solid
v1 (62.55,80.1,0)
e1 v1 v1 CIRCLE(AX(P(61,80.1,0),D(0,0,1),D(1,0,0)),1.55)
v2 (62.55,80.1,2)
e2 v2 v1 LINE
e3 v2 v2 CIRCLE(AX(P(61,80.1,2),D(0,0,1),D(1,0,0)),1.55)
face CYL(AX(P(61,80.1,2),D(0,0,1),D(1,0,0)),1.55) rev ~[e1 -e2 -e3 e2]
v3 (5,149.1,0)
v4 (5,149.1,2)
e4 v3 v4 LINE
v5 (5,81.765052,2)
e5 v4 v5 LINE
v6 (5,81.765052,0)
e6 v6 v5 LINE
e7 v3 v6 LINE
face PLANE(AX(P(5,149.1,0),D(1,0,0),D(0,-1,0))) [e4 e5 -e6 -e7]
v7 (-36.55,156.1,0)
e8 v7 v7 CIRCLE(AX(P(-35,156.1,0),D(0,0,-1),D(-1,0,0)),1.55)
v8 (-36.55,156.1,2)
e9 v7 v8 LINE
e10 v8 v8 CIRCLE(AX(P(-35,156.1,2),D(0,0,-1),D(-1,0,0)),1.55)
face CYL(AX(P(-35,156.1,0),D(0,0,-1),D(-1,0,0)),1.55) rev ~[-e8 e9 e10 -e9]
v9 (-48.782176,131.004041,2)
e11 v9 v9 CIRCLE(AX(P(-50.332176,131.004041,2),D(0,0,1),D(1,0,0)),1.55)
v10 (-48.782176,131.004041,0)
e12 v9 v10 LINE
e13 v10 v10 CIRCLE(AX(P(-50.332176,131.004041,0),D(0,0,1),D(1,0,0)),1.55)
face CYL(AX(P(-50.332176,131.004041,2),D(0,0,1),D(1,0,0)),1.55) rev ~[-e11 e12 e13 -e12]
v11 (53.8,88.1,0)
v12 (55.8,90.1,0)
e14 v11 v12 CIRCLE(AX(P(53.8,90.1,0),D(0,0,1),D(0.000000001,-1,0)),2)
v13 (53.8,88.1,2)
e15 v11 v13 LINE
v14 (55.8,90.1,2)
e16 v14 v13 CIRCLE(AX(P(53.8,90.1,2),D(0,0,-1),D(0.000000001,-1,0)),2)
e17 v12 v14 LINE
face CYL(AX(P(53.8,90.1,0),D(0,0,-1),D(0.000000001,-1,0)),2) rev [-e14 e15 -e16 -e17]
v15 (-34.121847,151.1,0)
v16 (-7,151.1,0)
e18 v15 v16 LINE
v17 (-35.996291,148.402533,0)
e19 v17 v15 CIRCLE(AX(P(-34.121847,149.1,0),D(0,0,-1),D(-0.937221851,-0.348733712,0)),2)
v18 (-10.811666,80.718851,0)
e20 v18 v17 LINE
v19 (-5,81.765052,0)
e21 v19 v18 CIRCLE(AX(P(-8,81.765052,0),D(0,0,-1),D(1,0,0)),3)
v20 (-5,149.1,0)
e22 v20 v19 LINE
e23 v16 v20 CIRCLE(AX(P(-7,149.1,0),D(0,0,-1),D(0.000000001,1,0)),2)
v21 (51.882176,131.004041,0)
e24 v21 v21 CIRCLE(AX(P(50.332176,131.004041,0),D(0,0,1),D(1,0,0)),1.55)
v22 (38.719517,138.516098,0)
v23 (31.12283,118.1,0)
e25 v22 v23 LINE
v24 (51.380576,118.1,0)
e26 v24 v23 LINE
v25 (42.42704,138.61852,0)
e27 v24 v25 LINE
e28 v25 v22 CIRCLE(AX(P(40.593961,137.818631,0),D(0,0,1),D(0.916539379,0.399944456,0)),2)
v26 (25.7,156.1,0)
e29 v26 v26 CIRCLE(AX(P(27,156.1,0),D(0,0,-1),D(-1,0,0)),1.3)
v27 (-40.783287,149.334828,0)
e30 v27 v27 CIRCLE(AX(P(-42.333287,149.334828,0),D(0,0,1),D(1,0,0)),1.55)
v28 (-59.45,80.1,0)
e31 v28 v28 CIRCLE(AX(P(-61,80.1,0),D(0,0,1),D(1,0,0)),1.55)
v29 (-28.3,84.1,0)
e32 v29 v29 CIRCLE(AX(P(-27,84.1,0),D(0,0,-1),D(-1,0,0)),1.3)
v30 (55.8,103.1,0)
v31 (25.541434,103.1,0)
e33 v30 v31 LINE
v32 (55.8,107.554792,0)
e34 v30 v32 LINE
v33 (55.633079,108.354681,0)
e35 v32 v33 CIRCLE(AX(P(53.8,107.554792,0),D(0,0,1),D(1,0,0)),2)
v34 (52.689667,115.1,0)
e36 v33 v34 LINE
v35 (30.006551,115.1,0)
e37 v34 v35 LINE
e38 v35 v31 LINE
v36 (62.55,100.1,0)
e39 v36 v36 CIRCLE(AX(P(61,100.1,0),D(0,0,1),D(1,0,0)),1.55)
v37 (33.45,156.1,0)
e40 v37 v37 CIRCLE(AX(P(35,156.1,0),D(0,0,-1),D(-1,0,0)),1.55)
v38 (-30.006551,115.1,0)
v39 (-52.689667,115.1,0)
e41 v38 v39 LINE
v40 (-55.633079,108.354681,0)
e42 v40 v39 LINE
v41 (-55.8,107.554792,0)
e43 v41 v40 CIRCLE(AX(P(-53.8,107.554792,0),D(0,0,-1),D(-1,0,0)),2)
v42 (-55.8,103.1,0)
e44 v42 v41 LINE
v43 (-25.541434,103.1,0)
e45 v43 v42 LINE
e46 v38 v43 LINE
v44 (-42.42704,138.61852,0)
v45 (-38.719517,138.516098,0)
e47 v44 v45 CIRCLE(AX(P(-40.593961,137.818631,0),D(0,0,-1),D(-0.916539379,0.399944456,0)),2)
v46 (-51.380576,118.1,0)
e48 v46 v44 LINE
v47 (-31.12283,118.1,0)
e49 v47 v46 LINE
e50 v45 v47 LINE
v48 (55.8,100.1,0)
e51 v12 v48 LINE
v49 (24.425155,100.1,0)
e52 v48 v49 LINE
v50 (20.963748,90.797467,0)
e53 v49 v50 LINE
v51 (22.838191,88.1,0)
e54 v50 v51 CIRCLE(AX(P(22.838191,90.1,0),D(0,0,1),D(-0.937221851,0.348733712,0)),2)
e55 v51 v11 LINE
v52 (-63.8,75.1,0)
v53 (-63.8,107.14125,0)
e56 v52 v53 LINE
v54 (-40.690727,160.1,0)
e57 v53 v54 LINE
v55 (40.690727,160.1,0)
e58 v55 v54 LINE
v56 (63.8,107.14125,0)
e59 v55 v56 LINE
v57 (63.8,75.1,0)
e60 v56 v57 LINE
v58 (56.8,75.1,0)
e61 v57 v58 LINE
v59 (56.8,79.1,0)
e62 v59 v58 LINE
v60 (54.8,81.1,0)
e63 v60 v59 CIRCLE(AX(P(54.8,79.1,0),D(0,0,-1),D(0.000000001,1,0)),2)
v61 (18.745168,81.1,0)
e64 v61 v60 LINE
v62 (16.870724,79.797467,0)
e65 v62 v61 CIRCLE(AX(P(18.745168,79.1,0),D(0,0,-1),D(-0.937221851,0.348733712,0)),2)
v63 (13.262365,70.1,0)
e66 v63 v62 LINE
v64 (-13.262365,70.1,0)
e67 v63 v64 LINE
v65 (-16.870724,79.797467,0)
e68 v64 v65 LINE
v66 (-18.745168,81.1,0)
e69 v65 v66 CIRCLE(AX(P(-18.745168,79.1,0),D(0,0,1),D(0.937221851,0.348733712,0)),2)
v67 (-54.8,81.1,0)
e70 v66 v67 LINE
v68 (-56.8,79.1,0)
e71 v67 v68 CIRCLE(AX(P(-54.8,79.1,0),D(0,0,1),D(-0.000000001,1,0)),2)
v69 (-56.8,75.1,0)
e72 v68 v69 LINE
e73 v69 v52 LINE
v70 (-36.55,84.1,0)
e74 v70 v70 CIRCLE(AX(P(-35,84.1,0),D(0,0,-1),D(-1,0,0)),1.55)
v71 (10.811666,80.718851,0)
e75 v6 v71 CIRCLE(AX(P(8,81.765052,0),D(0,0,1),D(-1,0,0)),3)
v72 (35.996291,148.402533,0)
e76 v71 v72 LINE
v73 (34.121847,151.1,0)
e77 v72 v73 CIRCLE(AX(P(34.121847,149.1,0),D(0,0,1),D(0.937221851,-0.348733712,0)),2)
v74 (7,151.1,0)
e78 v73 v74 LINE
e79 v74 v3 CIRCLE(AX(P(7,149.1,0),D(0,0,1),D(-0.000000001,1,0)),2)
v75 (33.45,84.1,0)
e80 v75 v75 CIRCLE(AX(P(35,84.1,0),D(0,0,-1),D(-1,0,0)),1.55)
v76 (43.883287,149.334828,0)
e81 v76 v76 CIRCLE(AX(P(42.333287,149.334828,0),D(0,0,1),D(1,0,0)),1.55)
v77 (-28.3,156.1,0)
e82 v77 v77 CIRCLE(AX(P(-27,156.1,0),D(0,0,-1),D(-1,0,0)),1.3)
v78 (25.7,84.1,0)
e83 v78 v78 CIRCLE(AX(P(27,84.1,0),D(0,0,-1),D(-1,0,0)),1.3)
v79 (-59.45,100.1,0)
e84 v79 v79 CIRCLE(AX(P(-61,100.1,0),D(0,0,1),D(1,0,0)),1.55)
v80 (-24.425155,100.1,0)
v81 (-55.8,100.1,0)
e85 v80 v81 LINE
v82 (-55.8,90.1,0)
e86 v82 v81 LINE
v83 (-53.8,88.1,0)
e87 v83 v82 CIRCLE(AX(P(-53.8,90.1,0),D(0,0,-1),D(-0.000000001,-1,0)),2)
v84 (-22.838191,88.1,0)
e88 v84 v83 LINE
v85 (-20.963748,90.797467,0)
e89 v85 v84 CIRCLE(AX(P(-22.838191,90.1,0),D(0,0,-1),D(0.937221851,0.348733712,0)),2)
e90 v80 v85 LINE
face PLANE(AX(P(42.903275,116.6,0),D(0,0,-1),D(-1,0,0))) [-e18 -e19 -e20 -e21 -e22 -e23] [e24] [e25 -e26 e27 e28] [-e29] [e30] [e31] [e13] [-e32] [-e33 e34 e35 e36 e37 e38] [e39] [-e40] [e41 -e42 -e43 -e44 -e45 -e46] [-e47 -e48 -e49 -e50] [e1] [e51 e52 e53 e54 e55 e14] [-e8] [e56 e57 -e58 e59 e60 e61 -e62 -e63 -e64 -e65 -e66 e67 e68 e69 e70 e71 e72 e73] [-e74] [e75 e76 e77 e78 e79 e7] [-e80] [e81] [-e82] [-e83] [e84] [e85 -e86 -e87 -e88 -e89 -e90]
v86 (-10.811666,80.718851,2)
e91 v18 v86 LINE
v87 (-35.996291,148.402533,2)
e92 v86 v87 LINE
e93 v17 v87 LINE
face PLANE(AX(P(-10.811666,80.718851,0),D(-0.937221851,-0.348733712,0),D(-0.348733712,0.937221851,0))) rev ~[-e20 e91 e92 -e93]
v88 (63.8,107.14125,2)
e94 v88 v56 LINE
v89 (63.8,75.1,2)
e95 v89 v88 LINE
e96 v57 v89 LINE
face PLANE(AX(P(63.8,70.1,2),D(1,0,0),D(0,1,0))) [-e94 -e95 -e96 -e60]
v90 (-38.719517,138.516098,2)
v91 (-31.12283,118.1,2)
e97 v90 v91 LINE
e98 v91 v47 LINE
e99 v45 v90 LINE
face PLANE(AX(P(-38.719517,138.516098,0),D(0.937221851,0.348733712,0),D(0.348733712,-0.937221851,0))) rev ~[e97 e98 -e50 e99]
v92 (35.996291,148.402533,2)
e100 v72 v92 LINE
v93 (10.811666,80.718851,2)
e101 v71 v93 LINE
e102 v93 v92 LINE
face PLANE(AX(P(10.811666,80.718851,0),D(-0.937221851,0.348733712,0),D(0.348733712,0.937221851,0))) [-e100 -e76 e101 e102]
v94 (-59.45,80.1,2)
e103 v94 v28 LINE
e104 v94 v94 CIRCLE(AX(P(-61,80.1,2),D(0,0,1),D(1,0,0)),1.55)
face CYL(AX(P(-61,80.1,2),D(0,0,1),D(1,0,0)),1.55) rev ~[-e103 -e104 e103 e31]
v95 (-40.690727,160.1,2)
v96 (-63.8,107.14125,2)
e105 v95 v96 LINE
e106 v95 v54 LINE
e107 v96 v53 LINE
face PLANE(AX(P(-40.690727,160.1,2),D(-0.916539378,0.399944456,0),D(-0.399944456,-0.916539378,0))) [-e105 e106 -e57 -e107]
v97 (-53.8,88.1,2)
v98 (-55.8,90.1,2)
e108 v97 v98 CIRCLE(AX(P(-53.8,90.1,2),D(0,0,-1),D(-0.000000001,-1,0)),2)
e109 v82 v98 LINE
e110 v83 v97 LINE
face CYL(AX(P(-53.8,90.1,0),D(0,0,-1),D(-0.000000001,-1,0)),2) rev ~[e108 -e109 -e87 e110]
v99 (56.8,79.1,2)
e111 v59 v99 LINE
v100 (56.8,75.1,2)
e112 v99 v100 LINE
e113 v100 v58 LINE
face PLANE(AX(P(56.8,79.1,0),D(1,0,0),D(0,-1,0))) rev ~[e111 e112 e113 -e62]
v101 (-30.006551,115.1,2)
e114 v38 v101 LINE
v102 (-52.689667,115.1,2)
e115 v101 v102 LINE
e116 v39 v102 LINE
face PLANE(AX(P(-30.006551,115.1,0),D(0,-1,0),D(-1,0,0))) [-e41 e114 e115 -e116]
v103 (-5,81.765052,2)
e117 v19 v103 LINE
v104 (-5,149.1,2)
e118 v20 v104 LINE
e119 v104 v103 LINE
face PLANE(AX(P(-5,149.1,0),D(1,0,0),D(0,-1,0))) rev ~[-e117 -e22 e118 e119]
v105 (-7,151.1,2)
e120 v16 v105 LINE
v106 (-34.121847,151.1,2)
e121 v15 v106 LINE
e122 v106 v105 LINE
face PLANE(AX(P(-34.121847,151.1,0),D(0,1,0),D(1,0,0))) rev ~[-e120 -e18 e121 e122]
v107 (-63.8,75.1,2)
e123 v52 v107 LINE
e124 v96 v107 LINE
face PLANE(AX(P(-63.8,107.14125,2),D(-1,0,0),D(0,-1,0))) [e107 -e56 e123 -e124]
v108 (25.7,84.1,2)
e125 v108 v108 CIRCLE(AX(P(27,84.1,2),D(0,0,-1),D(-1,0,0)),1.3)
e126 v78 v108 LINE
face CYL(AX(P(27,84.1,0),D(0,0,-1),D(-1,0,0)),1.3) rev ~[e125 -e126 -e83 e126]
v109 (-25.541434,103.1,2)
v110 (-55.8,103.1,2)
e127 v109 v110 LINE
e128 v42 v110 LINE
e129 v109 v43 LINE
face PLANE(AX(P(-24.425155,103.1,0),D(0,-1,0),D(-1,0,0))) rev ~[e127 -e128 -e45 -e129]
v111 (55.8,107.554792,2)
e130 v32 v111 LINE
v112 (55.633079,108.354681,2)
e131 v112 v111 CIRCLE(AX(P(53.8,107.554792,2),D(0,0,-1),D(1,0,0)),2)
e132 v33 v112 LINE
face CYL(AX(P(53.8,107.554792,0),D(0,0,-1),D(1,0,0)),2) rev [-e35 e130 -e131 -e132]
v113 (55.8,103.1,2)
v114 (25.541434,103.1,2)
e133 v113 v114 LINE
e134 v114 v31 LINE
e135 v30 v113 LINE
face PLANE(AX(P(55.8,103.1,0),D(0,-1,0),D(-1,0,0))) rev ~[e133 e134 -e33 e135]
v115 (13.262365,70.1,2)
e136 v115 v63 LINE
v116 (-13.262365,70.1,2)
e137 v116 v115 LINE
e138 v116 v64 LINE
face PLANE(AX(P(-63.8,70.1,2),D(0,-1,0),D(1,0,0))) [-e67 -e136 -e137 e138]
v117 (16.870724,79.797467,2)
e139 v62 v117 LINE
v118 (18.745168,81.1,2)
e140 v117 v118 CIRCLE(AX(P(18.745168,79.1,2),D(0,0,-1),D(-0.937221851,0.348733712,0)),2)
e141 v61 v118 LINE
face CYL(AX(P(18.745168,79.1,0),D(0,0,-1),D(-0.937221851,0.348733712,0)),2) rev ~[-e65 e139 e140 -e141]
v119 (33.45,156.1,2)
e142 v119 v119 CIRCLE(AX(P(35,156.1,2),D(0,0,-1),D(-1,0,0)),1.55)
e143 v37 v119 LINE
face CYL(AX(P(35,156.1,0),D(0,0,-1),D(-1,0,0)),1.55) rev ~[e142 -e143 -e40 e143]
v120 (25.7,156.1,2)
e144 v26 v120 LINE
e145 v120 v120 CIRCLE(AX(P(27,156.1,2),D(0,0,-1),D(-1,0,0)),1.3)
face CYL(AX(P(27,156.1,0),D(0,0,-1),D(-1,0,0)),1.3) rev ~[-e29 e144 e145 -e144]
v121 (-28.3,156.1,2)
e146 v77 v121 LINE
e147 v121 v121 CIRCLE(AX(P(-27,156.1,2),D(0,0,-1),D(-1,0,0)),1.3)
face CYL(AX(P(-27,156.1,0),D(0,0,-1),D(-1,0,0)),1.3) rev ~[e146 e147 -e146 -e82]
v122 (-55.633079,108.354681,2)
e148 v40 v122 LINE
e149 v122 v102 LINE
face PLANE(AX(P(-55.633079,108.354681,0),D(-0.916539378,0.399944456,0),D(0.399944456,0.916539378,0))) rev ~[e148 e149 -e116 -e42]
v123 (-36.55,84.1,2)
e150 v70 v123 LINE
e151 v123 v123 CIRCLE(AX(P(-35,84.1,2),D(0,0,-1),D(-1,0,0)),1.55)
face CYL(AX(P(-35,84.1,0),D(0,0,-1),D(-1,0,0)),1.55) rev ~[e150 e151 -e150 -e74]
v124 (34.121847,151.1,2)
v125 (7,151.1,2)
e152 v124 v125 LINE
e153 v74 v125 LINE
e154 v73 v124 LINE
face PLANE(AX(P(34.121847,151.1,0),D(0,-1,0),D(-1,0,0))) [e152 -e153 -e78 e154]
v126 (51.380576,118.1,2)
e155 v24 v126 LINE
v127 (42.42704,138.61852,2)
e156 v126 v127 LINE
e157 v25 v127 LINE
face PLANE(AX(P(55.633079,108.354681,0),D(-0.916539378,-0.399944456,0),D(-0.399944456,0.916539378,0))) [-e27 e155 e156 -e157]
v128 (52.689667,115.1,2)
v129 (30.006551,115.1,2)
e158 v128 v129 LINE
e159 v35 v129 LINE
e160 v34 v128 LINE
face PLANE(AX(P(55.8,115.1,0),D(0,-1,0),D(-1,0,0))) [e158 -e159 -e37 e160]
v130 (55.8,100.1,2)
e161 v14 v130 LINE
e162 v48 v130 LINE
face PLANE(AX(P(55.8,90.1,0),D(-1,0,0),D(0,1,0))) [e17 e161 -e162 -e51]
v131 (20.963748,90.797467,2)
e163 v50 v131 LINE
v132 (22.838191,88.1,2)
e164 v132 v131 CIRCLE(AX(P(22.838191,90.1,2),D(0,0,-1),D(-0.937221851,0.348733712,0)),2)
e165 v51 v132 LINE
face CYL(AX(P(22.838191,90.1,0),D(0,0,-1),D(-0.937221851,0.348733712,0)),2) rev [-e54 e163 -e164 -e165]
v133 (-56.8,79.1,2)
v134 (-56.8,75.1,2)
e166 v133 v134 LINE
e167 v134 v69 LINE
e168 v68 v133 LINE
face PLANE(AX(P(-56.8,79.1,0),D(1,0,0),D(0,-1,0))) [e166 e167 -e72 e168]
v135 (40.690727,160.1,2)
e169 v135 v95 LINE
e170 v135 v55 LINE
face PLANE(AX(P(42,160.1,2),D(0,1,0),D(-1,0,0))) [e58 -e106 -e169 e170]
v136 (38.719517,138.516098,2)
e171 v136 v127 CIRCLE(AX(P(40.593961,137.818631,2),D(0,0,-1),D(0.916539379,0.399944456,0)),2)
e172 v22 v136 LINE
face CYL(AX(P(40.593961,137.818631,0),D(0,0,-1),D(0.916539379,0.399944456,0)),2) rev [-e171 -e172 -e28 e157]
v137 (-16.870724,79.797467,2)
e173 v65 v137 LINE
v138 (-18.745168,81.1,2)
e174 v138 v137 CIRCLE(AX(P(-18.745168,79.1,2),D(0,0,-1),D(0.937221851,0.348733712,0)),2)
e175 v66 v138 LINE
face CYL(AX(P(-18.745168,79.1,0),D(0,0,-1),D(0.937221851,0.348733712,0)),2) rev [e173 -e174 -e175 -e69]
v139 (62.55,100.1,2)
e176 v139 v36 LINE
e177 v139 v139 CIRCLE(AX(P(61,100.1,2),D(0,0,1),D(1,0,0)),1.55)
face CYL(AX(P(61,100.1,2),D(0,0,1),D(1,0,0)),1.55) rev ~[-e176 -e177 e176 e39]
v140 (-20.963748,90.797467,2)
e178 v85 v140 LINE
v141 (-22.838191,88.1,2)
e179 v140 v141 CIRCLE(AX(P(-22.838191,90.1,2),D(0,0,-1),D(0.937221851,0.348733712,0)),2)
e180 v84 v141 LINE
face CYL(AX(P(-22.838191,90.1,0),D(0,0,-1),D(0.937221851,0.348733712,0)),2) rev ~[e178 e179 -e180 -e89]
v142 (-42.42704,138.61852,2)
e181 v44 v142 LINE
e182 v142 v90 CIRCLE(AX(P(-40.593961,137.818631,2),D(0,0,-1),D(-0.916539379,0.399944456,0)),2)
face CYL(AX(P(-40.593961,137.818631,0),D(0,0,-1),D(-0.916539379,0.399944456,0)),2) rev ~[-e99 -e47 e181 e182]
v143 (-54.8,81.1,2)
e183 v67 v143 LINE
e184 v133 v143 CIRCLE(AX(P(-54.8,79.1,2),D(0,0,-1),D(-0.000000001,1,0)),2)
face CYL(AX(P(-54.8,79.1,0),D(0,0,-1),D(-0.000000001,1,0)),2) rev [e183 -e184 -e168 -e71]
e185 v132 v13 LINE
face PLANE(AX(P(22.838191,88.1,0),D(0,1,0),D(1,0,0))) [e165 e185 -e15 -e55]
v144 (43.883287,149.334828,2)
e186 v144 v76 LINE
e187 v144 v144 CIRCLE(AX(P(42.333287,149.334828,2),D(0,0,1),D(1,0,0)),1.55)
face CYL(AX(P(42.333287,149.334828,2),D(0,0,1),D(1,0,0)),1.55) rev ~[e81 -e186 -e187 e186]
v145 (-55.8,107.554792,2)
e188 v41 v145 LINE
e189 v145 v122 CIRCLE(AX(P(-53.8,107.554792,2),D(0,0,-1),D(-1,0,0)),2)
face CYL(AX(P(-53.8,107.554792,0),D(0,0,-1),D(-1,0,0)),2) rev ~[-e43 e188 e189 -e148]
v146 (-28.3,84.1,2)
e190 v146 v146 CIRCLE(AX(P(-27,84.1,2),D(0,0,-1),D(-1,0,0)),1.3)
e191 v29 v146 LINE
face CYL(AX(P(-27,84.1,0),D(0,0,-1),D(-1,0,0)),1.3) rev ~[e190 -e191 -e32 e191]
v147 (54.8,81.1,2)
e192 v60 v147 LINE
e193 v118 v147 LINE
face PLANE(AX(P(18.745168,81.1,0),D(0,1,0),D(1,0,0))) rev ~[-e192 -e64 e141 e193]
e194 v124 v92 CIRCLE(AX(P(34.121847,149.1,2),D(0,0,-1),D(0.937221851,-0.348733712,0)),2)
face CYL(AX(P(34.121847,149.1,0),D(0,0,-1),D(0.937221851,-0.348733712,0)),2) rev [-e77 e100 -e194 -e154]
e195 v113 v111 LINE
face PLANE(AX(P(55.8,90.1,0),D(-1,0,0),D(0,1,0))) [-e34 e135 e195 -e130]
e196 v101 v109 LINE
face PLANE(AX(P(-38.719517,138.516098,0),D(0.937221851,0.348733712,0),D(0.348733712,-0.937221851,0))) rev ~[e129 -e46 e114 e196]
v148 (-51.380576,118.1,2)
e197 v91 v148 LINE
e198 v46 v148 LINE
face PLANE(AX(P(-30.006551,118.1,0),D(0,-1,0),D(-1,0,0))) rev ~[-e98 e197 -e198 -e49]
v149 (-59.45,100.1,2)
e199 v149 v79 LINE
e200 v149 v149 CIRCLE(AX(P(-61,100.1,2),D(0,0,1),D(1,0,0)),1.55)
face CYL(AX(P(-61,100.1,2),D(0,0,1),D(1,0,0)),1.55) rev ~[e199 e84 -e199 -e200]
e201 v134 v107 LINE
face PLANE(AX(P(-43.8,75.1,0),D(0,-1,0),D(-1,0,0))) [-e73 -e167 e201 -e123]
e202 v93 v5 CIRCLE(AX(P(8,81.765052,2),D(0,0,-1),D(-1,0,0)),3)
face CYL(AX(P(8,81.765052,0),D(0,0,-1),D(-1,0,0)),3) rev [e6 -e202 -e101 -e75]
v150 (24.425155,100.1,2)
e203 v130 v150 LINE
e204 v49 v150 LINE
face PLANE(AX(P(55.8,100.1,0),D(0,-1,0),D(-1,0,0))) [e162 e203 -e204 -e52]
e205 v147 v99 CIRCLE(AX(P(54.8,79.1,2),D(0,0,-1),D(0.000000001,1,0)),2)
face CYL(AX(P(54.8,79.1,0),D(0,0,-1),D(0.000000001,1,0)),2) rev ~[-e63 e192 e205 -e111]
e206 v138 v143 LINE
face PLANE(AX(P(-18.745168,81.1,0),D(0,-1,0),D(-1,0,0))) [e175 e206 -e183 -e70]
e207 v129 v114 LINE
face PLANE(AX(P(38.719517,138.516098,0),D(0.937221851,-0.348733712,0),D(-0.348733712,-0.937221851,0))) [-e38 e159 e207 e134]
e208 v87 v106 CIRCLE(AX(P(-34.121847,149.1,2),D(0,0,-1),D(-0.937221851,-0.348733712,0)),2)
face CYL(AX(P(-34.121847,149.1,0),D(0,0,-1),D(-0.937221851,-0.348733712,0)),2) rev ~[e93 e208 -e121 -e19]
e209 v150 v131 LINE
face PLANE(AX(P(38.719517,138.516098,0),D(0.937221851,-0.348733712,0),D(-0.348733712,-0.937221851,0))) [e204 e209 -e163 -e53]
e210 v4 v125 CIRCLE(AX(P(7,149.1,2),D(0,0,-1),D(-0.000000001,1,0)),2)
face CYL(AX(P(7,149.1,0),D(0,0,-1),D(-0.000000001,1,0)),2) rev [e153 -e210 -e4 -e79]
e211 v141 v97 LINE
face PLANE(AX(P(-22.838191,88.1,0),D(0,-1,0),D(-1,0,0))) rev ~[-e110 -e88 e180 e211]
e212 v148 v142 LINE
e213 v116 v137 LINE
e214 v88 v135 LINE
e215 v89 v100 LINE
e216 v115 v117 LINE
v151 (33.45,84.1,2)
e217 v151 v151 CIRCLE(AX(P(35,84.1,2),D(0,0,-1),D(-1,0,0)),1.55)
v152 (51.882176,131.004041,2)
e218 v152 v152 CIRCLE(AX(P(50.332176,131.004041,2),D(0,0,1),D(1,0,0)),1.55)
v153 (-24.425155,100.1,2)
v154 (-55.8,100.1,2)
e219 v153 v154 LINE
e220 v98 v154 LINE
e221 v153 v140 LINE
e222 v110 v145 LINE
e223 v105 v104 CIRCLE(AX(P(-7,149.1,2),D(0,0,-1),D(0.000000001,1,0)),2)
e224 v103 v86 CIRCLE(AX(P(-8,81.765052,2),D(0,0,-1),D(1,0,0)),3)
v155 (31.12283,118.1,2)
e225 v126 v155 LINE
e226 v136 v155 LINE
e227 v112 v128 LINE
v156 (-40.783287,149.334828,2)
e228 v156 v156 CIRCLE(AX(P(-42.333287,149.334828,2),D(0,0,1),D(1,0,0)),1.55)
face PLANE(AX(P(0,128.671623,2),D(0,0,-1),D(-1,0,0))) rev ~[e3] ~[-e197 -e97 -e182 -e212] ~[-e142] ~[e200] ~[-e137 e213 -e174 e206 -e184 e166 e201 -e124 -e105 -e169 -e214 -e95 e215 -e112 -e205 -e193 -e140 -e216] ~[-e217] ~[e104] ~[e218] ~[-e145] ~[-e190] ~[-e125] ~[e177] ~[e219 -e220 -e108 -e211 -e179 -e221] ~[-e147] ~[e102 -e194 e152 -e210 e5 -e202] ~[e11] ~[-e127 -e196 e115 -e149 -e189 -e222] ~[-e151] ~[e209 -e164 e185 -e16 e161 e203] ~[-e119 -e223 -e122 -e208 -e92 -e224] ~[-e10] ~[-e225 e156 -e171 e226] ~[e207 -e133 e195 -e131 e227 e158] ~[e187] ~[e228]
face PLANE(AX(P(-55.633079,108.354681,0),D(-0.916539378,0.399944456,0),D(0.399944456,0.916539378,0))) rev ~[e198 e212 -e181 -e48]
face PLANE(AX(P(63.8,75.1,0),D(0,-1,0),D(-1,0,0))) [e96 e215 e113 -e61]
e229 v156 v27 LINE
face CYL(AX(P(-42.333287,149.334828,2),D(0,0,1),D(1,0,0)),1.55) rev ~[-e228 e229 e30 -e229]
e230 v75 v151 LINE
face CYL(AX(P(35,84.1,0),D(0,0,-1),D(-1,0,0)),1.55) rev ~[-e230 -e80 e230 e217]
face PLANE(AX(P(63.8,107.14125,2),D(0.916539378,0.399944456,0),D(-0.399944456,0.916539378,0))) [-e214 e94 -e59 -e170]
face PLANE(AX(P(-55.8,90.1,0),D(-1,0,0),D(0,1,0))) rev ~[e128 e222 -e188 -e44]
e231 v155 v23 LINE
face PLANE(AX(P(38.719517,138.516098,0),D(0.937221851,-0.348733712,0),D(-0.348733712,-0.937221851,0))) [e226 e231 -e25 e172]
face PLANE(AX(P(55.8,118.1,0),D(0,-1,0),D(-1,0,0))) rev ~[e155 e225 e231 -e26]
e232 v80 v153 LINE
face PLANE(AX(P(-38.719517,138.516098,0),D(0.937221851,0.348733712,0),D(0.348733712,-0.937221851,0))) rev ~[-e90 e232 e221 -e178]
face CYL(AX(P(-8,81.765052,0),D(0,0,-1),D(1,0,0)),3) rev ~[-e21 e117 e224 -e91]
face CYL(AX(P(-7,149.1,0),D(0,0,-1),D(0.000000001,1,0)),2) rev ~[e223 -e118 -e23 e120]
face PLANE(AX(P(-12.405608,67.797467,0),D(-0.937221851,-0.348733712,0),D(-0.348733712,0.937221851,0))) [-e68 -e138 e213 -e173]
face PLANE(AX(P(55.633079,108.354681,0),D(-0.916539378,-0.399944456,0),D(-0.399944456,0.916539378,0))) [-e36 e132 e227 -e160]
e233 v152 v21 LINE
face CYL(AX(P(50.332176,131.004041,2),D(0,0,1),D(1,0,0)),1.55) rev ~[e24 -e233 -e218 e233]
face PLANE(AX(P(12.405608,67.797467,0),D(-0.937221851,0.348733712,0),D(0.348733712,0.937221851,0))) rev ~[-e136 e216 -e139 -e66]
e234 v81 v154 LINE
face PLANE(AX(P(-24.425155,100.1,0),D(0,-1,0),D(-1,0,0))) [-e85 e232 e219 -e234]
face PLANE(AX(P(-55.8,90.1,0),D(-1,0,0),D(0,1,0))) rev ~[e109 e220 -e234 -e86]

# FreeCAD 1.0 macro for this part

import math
import FreeCAD as App
import Part
import Sketcher
from FreeCAD import Vector
Q = App.Units.Quantity


def add_polygon(sketch, points):
    """Adds a closed chain of lines whose ends are joined by coincident constraints."""
    first, n = sketch.GeometryCount, len(points)
    for a, b in zip(points, points[1:] + points[:1]):
        sketch.addGeometry(Part.LineSegment(App.Vector(*a, 0), App.Vector(*b, 0)), False)
    for i in range(n):
        sketch.addConstraint(Sketcher.Constraint("Coincident", first + i, 2, first + (i + 1) % n, 1))

doc = App.newDocument("Part")
body = doc.addObject("PartDesign::Body", "Body")

# Sketch on XY plane
sketch1 = body.newObject("Sketcher::SketchObject", "Sketch")
sketch1.AttachmentSupport = (doc.getObject("XY_Plane"), [""])
sketch1.MapMode = "FlatFace"
sketch1.addGeometry(Part.LineSegment(Vector(66, 52.6, 0), Vector(66, 105.1, 0)), False)
sketch1.addGeometry(Part.LineSegment(Vector(66, 105.1, 0), Vector(-66, 105.1, 0)), False)
sketch1.addGeometry(Part.LineSegment(Vector(-66, 105.1, 0), Vector(-66, 52.6, 0)), False)
sketch1.addGeometry(Part.LineSegment(Vector(-66, 52.6, 0), Vector(-45.955328, -13.860297, 0)), False)
sketch1.addGeometry(Part.ArcOfCircle(Part.Circle(Vector(0, 0, 0), Vector(0, 0, 1), 48), math.radians(-163.216494), math.radians(-16.783506)), False)
sketch1.addGeometry(Part.LineSegment(Vector(45.955328, -13.860297, 0), Vector(66, 52.6, 0)), False)
sketch1.addGeometry(Part.Circle(Vector(31.749094, -31.749094, 0), Vector(0, 0, 1), 1.525), False)
sketch1.addGeometry(Part.Circle(Vector(-31.749094, -31.749094, 0), Vector(0, 0, 1), 1.525), False)
sketch1.addGeometry(Part.Circle(Vector(0, 0, 0), Vector(0, 0, 1), 40.9), False)
sketch1.addGeometry(Part.Circle(Vector(31.749094, 31.749094, 0), Vector(0, 0, 1), 1.525), False)
sketch1.addGeometry(Part.Circle(Vector(12.835118, 41.981779, 0), Vector(0, 0, 1), 1.525), False)
sketch1.addGeometry(Part.Circle(Vector(9.5, 52.6, 0), Vector(0, 0, 1), 1.525), False)
sketch1.addGeometry(Part.Circle(Vector(-17.153097, 40.410163, 0), Vector(0, 0, 1), 1.525), False)
sketch1.addGeometry(Part.Circle(Vector(-9.5, 52.6, 0), Vector(0, 0, 1), 1.525), False)
sketch1.addGeometry(Part.Circle(Vector(-31.749094, 31.749094, 0), Vector(0, 0, 1), 1.525), False)
sketch1.addConstraint(Sketcher.Constraint("Coincident", 0, 2, 1, 1))
sketch1.addConstraint(Sketcher.Constraint("Coincident", 1, 2, 2, 1))
sketch1.addConstraint(Sketcher.Constraint("Coincident", 2, 2, 3, 1))
sketch1.addConstraint(Sketcher.Constraint("Tangent", 3, 2, 4, 1))
sketch1.addConstraint(Sketcher.Constraint("Tangent", 4, 2, 5, 1))
sketch1.addConstraint(Sketcher.Constraint("Coincident", 5, 2, 0, 1))
sketch1.addConstraint(Sketcher.Constraint("Vertical", 0))
sketch1.addConstraint(Sketcher.Constraint("Horizontal", 1))
sketch1.addConstraint(Sketcher.Constraint("Vertical", 2))
sketch1.addConstraint(Sketcher.Constraint("Coincident", 4, 3, -1, 1))
sketch1.addConstraint(Sketcher.Constraint("Coincident", 8, 3, -1, 1))
sketch1.addConstraint(Sketcher.Constraint("Equal", 6, 7))
sketch1.addConstraint(Sketcher.Constraint("Equal", 7, 9))
sketch1.addConstraint(Sketcher.Constraint("Equal", 9, 10))
sketch1.addConstraint(Sketcher.Constraint("Equal", 10, 11))
sketch1.addConstraint(Sketcher.Constraint("Equal", 11, 12))
sketch1.addConstraint(Sketcher.Constraint("Equal", 12, 13))
sketch1.addConstraint(Sketcher.Constraint("Equal", 13, 14))
sketch1.addConstraint(Sketcher.Constraint("Symmetric", 7, 3, 9, 3, -1, 1))
sketch1.addConstraint(Sketcher.Constraint("Symmetric", 6, 3, 14, 3, -1, 1))
sketch1.addConstraint(Sketcher.Constraint("Symmetric", 6, 3, 7, 3, -2))
sketch1.addConstraint(Sketcher.Constraint("Symmetric", 11, 3, 13, 3, -2))
sketch1.addConstraint(Sketcher.Constraint("Symmetric", 2, 2, 5, 2, -2))
sketch1.addConstraint(Sketcher.Constraint("Horizontal", 13, 3, 2, 2))
sketch1.addConstraint(Sketcher.Constraint("Radius", 4, Q("48 mm")))
sketch1.addConstraint(Sketcher.Constraint("Diameter", 8, Q("81.8 mm")))
sketch1.addConstraint(Sketcher.Constraint("Diameter", 6, Q("3.05 mm")))
sketch1.addConstraint(Sketcher.Constraint("DistanceX", 1, 2, 1, 1, Q("132 mm")))
sketch1.addConstraint(Sketcher.Constraint("DistanceY", 0, 1, 0, 2, Q("52.5 mm")))
sketch1.addConstraint(Sketcher.Constraint("DistanceX", 13, 3, 11, 3, Q("19 mm")))
sketch1.addConstraint(Sketcher.Constraint("DistanceY", -1, 1, 11, 3, Q("52.6 mm")))
sketch1.addConstraint(Sketcher.Constraint("DistanceY", -1, 1, 10, 3, Q("41.981779 mm")))
sketch1.addConstraint(Sketcher.Constraint("DistanceX", 7, 3, 6, 3, Q("63.498189 mm")))
sketch1.addConstraint(Sketcher.Constraint("DistanceY", 6, 3, 9, 3, Q("63.498189 mm")))
sketch1.addConstraint(Sketcher.Constraint("DistanceX", 12, 3, 9, 3, Q("48.902191 mm")))
sketch1.addConstraint(Sketcher.Constraint("DistanceY", 9, 3, 12, 3, Q("8.661069 mm")))
sketch1.addConstraint(Sketcher.Constraint("DistanceX", 10, 3, 4, 2, Q("33.12021 mm")))
pad1 = body.newObject("PartDesign::Pad", "Pad")
pad1.Profile = sketch1
pad1.Length = 2

# Sketch on XY plane
sketch2 = body.newObject("Sketcher::SketchObject", "Sketch001")
sketch2.AttachmentSupport = (doc.getObject("XY_Plane"), [""])
sketch2.MapMode = "FlatFace"
sketch2.AttachmentOffset = App.Placement(Vector(0, 0, 2), App.Rotation())
add_polygon(sketch2, [(-42, 160.1), (-66, 105.1), (66, 105.1), (42, 160.1)])  # lines 0-3
sketch2.addConstraint(Sketcher.Constraint("Horizontal", 1))
sketch2.addConstraint(Sketcher.Constraint("Horizontal", 3))
sketch2.addConstraint(Sketcher.Constraint("Equal", 0, 2))
sketch2.addConstraint(Sketcher.Constraint("DistanceX", 1, 1, 1, 2, Q("132 mm")))
sketch2.addConstraint(Sketcher.Constraint("DistanceX", 3, 2, 3, 1, Q("84 mm")))
sketch2.addConstraint(Sketcher.Constraint("DistanceX", 0, 2, -1, 1, Q("66 mm")))
sketch2.addConstraint(Sketcher.Constraint("DistanceY", 1, 2, 2, 2, Q("55 mm")))
sketch2.addConstraint(Sketcher.Constraint("DistanceY", -1, 1, 0, 2, Q("105.1 mm")))
pad2 = body.newObject("PartDesign::Pad", "Pad001")
pad2.Profile = sketch2
pad2.Length = 2
pad2.Reversed = True

# Sketch on XY plane
sketch3 = body.newObject("Sketcher::SketchObject", "Sketch002")
sketch3.AttachmentSupport = (doc.getObject("XY_Plane"), [""])
sketch3.MapMode = "FlatFace"
sketch3.AttachmentOffset = App.Placement(Vector(0, 0, 2), App.Rotation())
sketch3.addGeometry(Part.Circle(Vector(-61, 100.1, 0), Vector(0, 0, 1), 1.55), False)
sketch3.addGeometry(Part.Circle(Vector(-61, 80.1, 0), Vector(0, 0, 1), 1.55), False)
sketch3.addGeometry(Part.Circle(Vector(-42.333287, 149.334828, 0), Vector(0, 0, 1), 1.55), False)
sketch3.addGeometry(Part.Circle(Vector(-50.332176, 131.004041, 0), Vector(0, 0, 1), 1.55), False)
sketch3.addGeometry(Part.Circle(Vector(61, 80.1, 0), Vector(0, 0, 1), 1.55), False)
sketch3.addGeometry(Part.Circle(Vector(61, 100.1, 0), Vector(0, 0, 1), 1.55), False)
sketch3.addGeometry(Part.Circle(Vector(50.332176, 131.004041, 0), Vector(0, 0, 1), 1.55), False)
sketch3.addGeometry(Part.Circle(Vector(42.333287, 149.334828, 0), Vector(0, 0, 1), 1.55), False)
sketch3.addConstraint(Sketcher.Constraint("Equal", 0, 1))
sketch3.addConstraint(Sketcher.Constraint("Equal", 1, 2))
sketch3.addConstraint(Sketcher.Constraint("Equal", 2, 3))
sketch3.addConstraint(Sketcher.Constraint("Equal", 3, 4))
sketch3.addConstraint(Sketcher.Constraint("Equal", 4, 5))
sketch3.addConstraint(Sketcher.Constraint("Equal", 5, 6))
sketch3.addConstraint(Sketcher.Constraint("Equal", 6, 7))
sketch3.addConstraint(Sketcher.Constraint("Symmetric", 1, 3, 4, 3, -2))
sketch3.addConstraint(Sketcher.Constraint("Symmetric", 0, 3, 5, 3, -2))
sketch3.addConstraint(Sketcher.Constraint("Symmetric", 3, 3, 6, 3, -2))
sketch3.addConstraint(Sketcher.Constraint("Symmetric", 2, 3, 7, 3, -2))
sketch3.addConstraint(Sketcher.Constraint("Vertical", 0, 3, 1, 3))
sketch3.addConstraint(Sketcher.Constraint("Diameter", 0, Q("3.1 mm")))
sketch3.addConstraint(Sketcher.Constraint("DistanceX", 0, 3, -1, 1, Q("61 mm")))
sketch3.addConstraint(Sketcher.Constraint("DistanceY", 1, 3, 0, 3, Q("20 mm")))
sketch3.addConstraint(Sketcher.Constraint("DistanceY", -1, 1, 0, 3, Q("100.1 mm")))
sketch3.addConstraint(Sketcher.Constraint("DistanceY", -1, 1, 2, 3, Q("149.334828 mm")))
sketch3.addConstraint(Sketcher.Constraint("DistanceY", -1, 1, 3, 3, Q("131.004041 mm")))
sketch3.addConstraint(Sketcher.Constraint("DistanceX", 3, 3, 2, 3, Q("7.998889 mm")))
sketch3.addConstraint(Sketcher.Constraint("DistanceX", 2, 3, -1, 1, Q("42.333287 mm")))
pocket1 = body.newObject("PartDesign::Pocket", "Pocket")
pocket1.Profile = sketch3
pocket1.Length = 10

# Sketch on XY plane
sketch4 = body.newObject("Sketcher::SketchObject", "Sketch003")
sketch4.AttachmentSupport = (doc.getObject("XY_Plane"), [""])
sketch4.MapMode = "FlatFace"
sketch4.AttachmentOffset = App.Placement(Vector(0, 0, 2), App.Rotation())
add_polygon(sketch4, [(-91.644, 185.744), (-91.644, -73.644), (91.644, -73.644), (91.644, 185.744)])  # lines 0-3
add_polygon(sketch4, [(-63.8, 107.14125), (-40.690727, 160.1), (40.690727, 160.1), (63.8, 107.14125), (63.8, 70.1), (-63.8, 70.1)])  # lines 4-9
sketch4.addConstraint(Sketcher.Constraint("Vertical", 0))
sketch4.addConstraint(Sketcher.Constraint("Horizontal", 1))
sketch4.addConstraint(Sketcher.Constraint("Vertical", 2))
sketch4.addConstraint(Sketcher.Constraint("Horizontal", 3))
sketch4.addConstraint(Sketcher.Constraint("Horizontal", 5))
sketch4.addConstraint(Sketcher.Constraint("Vertical", 7))
sketch4.addConstraint(Sketcher.Constraint("Horizontal", 8))
sketch4.addConstraint(Sketcher.Constraint("Vertical", 9))
sketch4.addConstraint(Sketcher.Constraint("Symmetric", 6, 2, 9, 2, -2))
sketch4.addConstraint(Sketcher.Constraint("Equal", 4, 6))
sketch4.addConstraint(Sketcher.Constraint("DistanceX", 8, 2, 8, 1, Q("127.6 mm")))
sketch4.addConstraint(Sketcher.Constraint("DistanceY", 7, 2, 5, 2, Q("90 mm")))
sketch4.addConstraint(Sketcher.Constraint("DistanceY", -1, 1, 4, 2, Q("160.1 mm")))
sketch4.addConstraint(Sketcher.Constraint("DistanceX", 1, 1, 1, 2, Q("183.288 mm")))
sketch4.addConstraint(Sketcher.Constraint("DistanceY", 0, 2, 0, 1, Q("259.388 mm")))
sketch4.addConstraint(Sketcher.Constraint("DistanceX", 0, 2, -1, 1, Q("91.644 mm")))
sketch4.addConstraint(Sketcher.Constraint("DistanceY", 0, 2, -1, 1, Q("73.644 mm")))
sketch4.addConstraint(Sketcher.Constraint("DistanceY", 7, 2, 7, 1, Q("37.04125 mm")))
sketch4.addConstraint(Sketcher.Constraint("DistanceX", 5, 1, 5, 2, Q("81.381455 mm")))
pocket2 = body.newObject("PartDesign::Pocket", "Pocket001")
pocket2.Profile = sketch4
pocket2.Length = 10

# Sketch on XY plane
sketch5 = body.newObject("Sketcher::SketchObject", "Sketch004")
sketch5.AttachmentSupport = (doc.getObject("XY_Plane"), [""])
sketch5.MapMode = "FlatFace"
sketch5.addGeometry(Part.Circle(Vector(27, 156.1, 0), Vector(0, 0, 1), 1.3), False)
sketch5.addGeometry(Part.Circle(Vector(-27, 156.1, 0), Vector(0, 0, 1), 1.3), False)
sketch5.addGeometry(Part.Circle(Vector(27, 84.1, 0), Vector(0, 0, 1), 1.3), False)
sketch5.addGeometry(Part.Circle(Vector(-27, 84.1, 0), Vector(0, 0, 1), 1.3), False)
sketch5.addGeometry(Part.Circle(Vector(35, 156.1, 0), Vector(0, 0, 1), 1.55), False)
sketch5.addGeometry(Part.Circle(Vector(-35, 156.1, 0), Vector(0, 0, 1), 1.55), False)
sketch5.addGeometry(Part.Circle(Vector(35, 84.1, 0), Vector(0, 0, 1), 1.55), False)
sketch5.addGeometry(Part.Circle(Vector(-35, 84.1, 0), Vector(0, 0, 1), 1.55), False)
sketch5.addConstraint(Sketcher.Constraint("Equal", 0, 1))
sketch5.addConstraint(Sketcher.Constraint("Equal", 1, 2))
sketch5.addConstraint(Sketcher.Constraint("Equal", 2, 3))
sketch5.addConstraint(Sketcher.Constraint("Equal", 4, 5))
sketch5.addConstraint(Sketcher.Constraint("Equal", 5, 6))
sketch5.addConstraint(Sketcher.Constraint("Equal", 6, 7))
sketch5.addConstraint(Sketcher.Constraint("Symmetric", 0, 3, 1, 3, -2))
sketch5.addConstraint(Sketcher.Constraint("Symmetric", 2, 3, 3, 3, -2))
sketch5.addConstraint(Sketcher.Constraint("Symmetric", 4, 3, 5, 3, -2))
sketch5.addConstraint(Sketcher.Constraint("Symmetric", 6, 3, 7, 3, -2))
sketch5.addConstraint(Sketcher.Constraint("Horizontal", 1, 3, 4, 3))
sketch5.addConstraint(Sketcher.Constraint("Horizontal", 3, 3, 6, 3))
sketch5.addConstraint(Sketcher.Constraint("Vertical", 0, 3, 2, 3))
sketch5.addConstraint(Sketcher.Constraint("Vertical", 4, 3, 6, 3))
sketch5.addConstraint(Sketcher.Constraint("Diameter", 0, Q("2.6 mm")))
sketch5.addConstraint(Sketcher.Constraint("Diameter", 4, Q("3.1 mm")))
sketch5.addConstraint(Sketcher.Constraint("DistanceX", -1, 1, 0, 3, Q("27 mm")))
sketch5.addConstraint(Sketcher.Constraint("DistanceX", -1, 1, 4, 3, Q("35 mm")))
sketch5.addConstraint(Sketcher.Constraint("DistanceY", 2, 3, 0, 3, Q("72 mm")))
sketch5.addConstraint(Sketcher.Constraint("DistanceY", -1, 1, 0, 3, Q("156.1 mm")))
pocket3 = body.newObject("PartDesign::Pocket", "Pocket002")
pocket3.Profile = sketch5
pocket3.Length = 10
pocket3.Reversed = True

# Sketch on XY plane
sketch6 = body.newObject("Sketcher::SketchObject", "Sketch005")
sketch6.AttachmentSupport = (doc.getObject("XY_Plane"), [""])
sketch6.MapMode = "FlatFace"
sketch6.addGeometry(Part.LineSegment(Vector(7, 151.1, 0), Vector(34.121847, 151.1, 0)), False)
sketch6.addGeometry(Part.ArcOfCircle(Part.Circle(Vector(34.121847, 149.1, 0), Vector(0, 0, 1), 2), math.radians(-20.409883), math.radians(90)), False)
sketch6.addGeometry(Part.LineSegment(Vector(35.996291, 148.402533, 0), Vector(10.811666, 80.718851, 0)), False)
sketch6.addGeometry(Part.ArcOfCircle(Part.Circle(Vector(8, 81.765052, 0), Vector(0, 0, 1), 3), math.radians(180), math.radians(339.590117)), False)
sketch6.addGeometry(Part.LineSegment(Vector(5, 81.765052, 0), Vector(5, 149.1, 0)), False)
sketch6.addGeometry(Part.ArcOfCircle(Part.Circle(Vector(7, 149.1, 0), Vector(0, 0, 1), 2), math.radians(90), math.radians(180)), False)
sketch6.addGeometry(Part.LineSegment(Vector(20.963748, 90.797467, 0), Vector(38.719517, 138.516098, 0)), False)
sketch6.addGeometry(Part.ArcOfCircle(Part.Circle(Vector(40.593961, 137.818631, 0), Vector(0, 0, 1), 2), math.radians(23.574706), math.radians(159.590117)), False)
sketch6.addGeometry(Part.LineSegment(Vector(42.42704, 138.61852, 0), Vector(55.633079, 108.354681, 0)), False)
sketch6.addGeometry(Part.ArcOfCircle(Part.Circle(Vector(53.8, 107.554792, 0), Vector(0, 0, 1), 2), math.radians(0), math.radians(23.574706)), False)
sketch6.addGeometry(Part.LineSegment(Vector(55.8, 107.554792, 0), Vector(55.8, 90.1, 0)), False)
sketch6.addGeometry(Part.ArcOfCircle(Part.Circle(Vector(53.8, 90.1, 0), Vector(0, 0, 1), 2), math.radians(-90), math.radians(0)), False)
sketch6.addGeometry(Part.LineSegment(Vector(53.8, 88.1, 0), Vector(22.838191, 88.1, 0)), False)
sketch6.addGeometry(Part.ArcOfCircle(Part.Circle(Vector(22.838191, 90.1, 0), Vector(0, 0, 1), 2), math.radians(159.590117), math.radians(270)), False)
sketch6.addGeometry(Part.LineSegment(Vector(56.8, 79.1, 0), Vector(56.8, 67.1, 0)), False)
sketch6.addGeometry(Part.ArcOfCircle(Part.Circle(Vector(54.8, 67.1, 0), Vector(0, 0, 1), 2), math.radians(-90), math.radians(0)), False)
sketch6.addGeometry(Part.LineSegment(Vector(54.8, 65.1, 0), Vector(14.280052, 65.1, 0)), False)
sketch6.addGeometry(Part.ArcOfCircle(Part.Circle(Vector(14.280052, 67.1, 0), Vector(0, 0, 1), 2), math.radians(159.590117), math.radians(270)), False)
sketch6.addGeometry(Part.LineSegment(Vector(12.405608, 67.797467, 0), Vector(16.870724, 79.797467, 0)), False)
sketch6.addGeometry(Part.ArcOfCircle(Part.Circle(Vector(18.745168, 79.1, 0), Vector(0, 0, 1), 2), math.radians(90), math.radians(159.590117)), False)
sketch6.addGeometry(Part.LineSegment(Vector(18.745168, 81.1, 0), Vector(54.8, 81.1, 0)), False)
sketch6.addGeometry(Part.ArcOfCircle(Part.Circle(Vector(54.8, 79.1, 0), Vector(0, 0, 1), 2), math.radians(0), math.radians(90)), False)
sketch6.addGeometry(Part.LineSegment(Vector(-54.8, 81.1, 0), Vector(-18.745168, 81.1, 0)), False)
sketch6.addGeometry(Part.ArcOfCircle(Part.Circle(Vector(-18.745168, 79.1, 0), Vector(0, 0, 1), 2), math.radians(20.409883), math.radians(90)), False)
sketch6.addGeometry(Part.LineSegment(Vector(-16.870724, 79.797467, 0), Vector(-12.405608, 67.797467, 0)), False)
sketch6.addGeometry(Part.ArcOfCircle(Part.Circle(Vector(-14.280052, 67.1, 0), Vector(0, 0, 1), 2), math.radians(-90), math.radians(20.409883)), False)
sketch6.addGeometry(Part.LineSegment(Vector(-14.280052, 65.1, 0), Vector(-54.8, 65.1, 0)), False)
sketch6.addGeometry(Part.ArcOfCircle(Part.Circle(Vector(-54.8, 67.1, 0), Vector(0, 0, 1), 2), math.radians(-180), math.radians(-90)), False)
sketch6.addGeometry(Part.LineSegment(Vector(-56.8, 67.1, 0), Vector(-56.8, 79.1, 0)), False)
sketch6.addGeometry(Part.ArcOfCircle(Part.Circle(Vector(-54.8, 79.1, 0), Vector(0, 0, 1), 2), math.radians(90), math.radians(180)), False)
sketch6.addGeometry(Part.LineSegment(Vector(-55.633079, 108.354681, 0), Vector(-42.42704, 138.61852, 0)), False)
sketch6.addGeometry(Part.ArcOfCircle(Part.Circle(Vector(-40.593961, 137.818631, 0), Vector(0, 0, 1), 2), math.radians(20.409883), math.radians(156.425294)), False)
sketch6.addGeometry(Part.LineSegment(Vector(-38.719517, 138.516098, 0), Vector(-20.963748, 90.797467, 0)), False)
sketch6.addGeometry(Part.ArcOfCircle(Part.Circle(Vector(-22.838191, 90.1, 0), Vector(0, 0, 1), 2), math.radians(-90), math.radians(20.409883)), False)
sketch6.addGeometry(Part.LineSegment(Vector(-22.838191, 88.1, 0), Vector(-53.8, 88.1, 0)), False)
sketch6.addGeometry(Part.ArcOfCircle(Part.Circle(Vector(-53.8, 90.1, 0), Vector(0, 0, 1), 2), math.radians(-180), math.radians(-90)), False)
sketch6.addGeometry(Part.LineSegment(Vector(-55.8, 90.1, 0), Vector(-55.8, 107.554792, 0)), False)
sketch6.addGeometry(Part.ArcOfCircle(Part.Circle(Vector(-53.8, 107.554792, 0), Vector(0, 0, 1), 2), math.radians(156.425294), math.radians(180)), False)
sketch6.addGeometry(Part.LineSegment(Vector(-10.811666, 80.718851, 0), Vector(-35.996291, 148.402533, 0)), False)
sketch6.addGeometry(Part.ArcOfCircle(Part.Circle(Vector(-34.121847, 149.1, 0), Vector(0, 0, 1), 2), math.radians(90), math.radians(200.409883)), False)
sketch6.addGeometry(Part.LineSegment(Vector(-34.121847, 151.1, 0), Vector(-7, 151.1, 0)), False)
sketch6.addGeometry(Part.ArcOfCircle(Part.Circle(Vector(-7, 149.1, 0), Vector(0, 0, 1), 2), math.radians(0), math.radians(90)), False)
sketch6.addGeometry(Part.LineSegment(Vector(-5, 149.1, 0), Vector(-5, 81.765052, 0)), False)
sketch6.addGeometry(Part.ArcOfCircle(Part.Circle(Vector(-8, 81.765052, 0), Vector(0, 0, 1), 3), math.radians(-159.590117), math.radians(0)), False)
sketch6.addConstraint(Sketcher.Constraint("Tangent", 0, 2, 1, 2))
sketch6.addConstraint(Sketcher.Constraint("Tangent", 1, 1, 2, 1))
sketch6.addConstraint(Sketcher.Constraint("Tangent", 2, 2, 3, 2))
sketch6.addConstraint(Sketcher.Constraint("Tangent", 3, 1, 4, 1))
sketch6.addConstraint(Sketcher.Constraint("Tangent", 4, 2, 5, 2))
sketch6.addConstraint(Sketcher.Constraint("Tangent", 5, 1, 0, 1))
sketch6.addConstraint(Sketcher.Constraint("Tangent", 6, 2, 7, 2))
sketch6.addConstraint(Sketcher.Constraint("Tangent", 7, 1, 8, 1))
sketch6.addConstraint(Sketcher.Constraint("Tangent", 8, 2, 9, 2))
sketch6.addConstraint(Sketcher.Constraint("Tangent", 9, 1, 10, 1))
sketch6.addConstraint(Sketcher.Constraint("Tangent", 10, 2, 11, 2))
sketch6.addConstraint(Sketcher.Constraint("Tangent", 11, 1, 12, 1))
sketch6.addConstraint(Sketcher.Constraint("Tangent", 12, 2, 13, 2))
sketch6.addConstraint(Sketcher.Constraint("Tangent", 13, 1, 6, 1))
sketch6.addConstraint(Sketcher.Constraint("Tangent", 14, 2, 15, 2))
sketch6.addConstraint(Sketcher.Constraint("Tangent", 15, 1, 16, 1))
sketch6.addConstraint(Sketcher.Constraint("Tangent", 16, 2, 17, 2))
sketch6.addConstraint(Sketcher.Constraint("Tangent", 17, 1, 18, 1))
sketch6.addConstraint(Sketcher.Constraint("Tangent", 18, 2, 19, 2))
sketch6.addConstraint(Sketcher.Constraint("Tangent", 19, 1, 20, 1))
sketch6.addConstraint(Sketcher.Constraint("Tangent", 20, 2, 21, 2))
sketch6.addConstraint(Sketcher.Constraint("Tangent", 21, 1, 14, 1))
sketch6.addConstraint(Sketcher.Constraint("Tangent", 22, 2, 23, 2))
sketch6.addConstraint(Sketcher.Constraint("Tangent", 23, 1, 24, 1))
sketch6.addConstraint(Sketcher.Constraint("Tangent", 24, 2, 25, 2))
sketch6.addConstraint(Sketcher.Constraint("Tangent", 25, 1, 26, 1))
sketch6.addConstraint(Sketcher.Constraint("Tangent", 26, 2, 27, 2))
sketch6.addConstraint(Sketcher.Constraint("Tangent", 27, 1, 28, 1))
sketch6.addConstraint(Sketcher.Constraint("Tangent", 28, 2, 29, 2))
sketch6.addConstraint(Sketcher.Constraint("Tangent", 29, 1, 22, 1))
sketch6.addConstraint(Sketcher.Constraint("Tangent", 30, 2, 31, 2))
sketch6.addConstraint(Sketcher.Constraint("Tangent", 31, 1, 32, 1))
sketch6.addConstraint(Sketcher.Constraint("Tangent", 32, 2, 33, 2))
sketch6.addConstraint(Sketcher.Constraint("Tangent", 33, 1, 34, 1))
sketch6.addConstraint(Sketcher.Constraint("Tangent", 34, 2, 35, 2))
sketch6.addConstraint(Sketcher.Constraint("Tangent", 35, 1, 36, 1))
sketch6.addConstraint(Sketcher.Constraint("Tangent", 36, 2, 37, 2))
sketch6.addConstraint(Sketcher.Constraint("Tangent", 37, 1, 30, 1))
sketch6.addConstraint(Sketcher.Constraint("Tangent", 38, 2, 39, 2))
sketch6.addConstraint(Sketcher.Constraint("Tangent", 39, 1, 40, 1))
sketch6.addConstraint(Sketcher.Constraint("Tangent", 40, 2, 41, 2))
sketch6.addConstraint(Sketcher.Constraint("Tangent", 41, 1, 42, 1))
sketch6.addConstraint(Sketcher.Constraint("Tangent", 42, 2, 43, 2))
sketch6.addConstraint(Sketcher.Constraint("Tangent", 43, 1, 38, 1))
sketch6.addConstraint(Sketcher.Constraint("Horizontal", 0))
sketch6.addConstraint(Sketcher.Constraint("Vertical", 4))
sketch6.addConstraint(Sketcher.Constraint("Vertical", 10))
sketch6.addConstraint(Sketcher.Constraint("Horizontal", 12))
sketch6.addConstraint(Sketcher.Constraint("Vertical", 14))
sketch6.addConstraint(Sketcher.Constraint("Horizontal", 16))
sketch6.addConstraint(Sketcher.Constraint("Horizontal", 20))
sketch6.addConstraint(Sketcher.Constraint("Horizontal", 22))
sketch6.addConstraint(Sketcher.Constraint("Horizontal", 26))
sketch6.addConstraint(Sketcher.Constraint("Vertical", 28))
sketch6.addConstraint(Sketcher.Constraint("Horizontal", 34))
sketch6.addConstraint(Sketcher.Constraint("Vertical", 36))
sketch6.addConstraint(Sketcher.Constraint("Horizontal", 40))
sketch6.addConstraint(Sketcher.Constraint("Vertical", 42))
sketch6.addConstraint(Sketcher.Constraint("Equal", 1, 5))
sketch6.addConstraint(Sketcher.Constraint("Equal", 5, 7))
sketch6.addConstraint(Sketcher.Constraint("Equal", 7, 9))
sketch6.addConstraint(Sketcher.Constraint("Equal", 9, 11))
sketch6.addConstraint(Sketcher.Constraint("Equal", 11, 13))
sketch6.addConstraint(Sketcher.Constraint("Equal", 13, 15))
sketch6.addConstraint(Sketcher.Constraint("Equal", 15, 17))
sketch6.addConstraint(Sketcher.Constraint("Equal", 17, 19))
sketch6.addConstraint(Sketcher.Constraint("Equal", 19, 21))
sketch6.addConstraint(Sketcher.Constraint("Equal", 21, 23))
sketch6.addConstraint(Sketcher.Constraint("Equal", 23, 25))
sketch6.addConstraint(Sketcher.Constraint("Equal", 25, 27))
sketch6.addConstraint(Sketcher.Constraint("Equal", 27, 29))
sketch6.addConstraint(Sketcher.Constraint("Equal", 29, 31))
sketch6.addConstraint(Sketcher.Constraint("Equal", 31, 33))
sketch6.addConstraint(Sketcher.Constraint("Equal", 33, 35))
sketch6.addConstraint(Sketcher.Constraint("Equal", 35, 37))
sketch6.addConstraint(Sketcher.Constraint("Equal", 37, 39))
sketch6.addConstraint(Sketcher.Constraint("Equal", 39, 41))
sketch6.addConstraint(Sketcher.Constraint("Equal", 3, 43))
sketch6.addConstraint(Sketcher.Constraint("Symmetric", 19, 3, 23, 3, -2))
sketch6.addConstraint(Sketcher.Constraint("Symmetric", 17, 3, 25, 3, -2))
sketch6.addConstraint(Sketcher.Constraint("Symmetric", 7, 3, 31, 3, -2))
sketch6.addConstraint(Sketcher.Constraint("Symmetric", 13, 3, 33, 3, -2))
sketch6.addConstraint(Sketcher.Constraint("Symmetric", 9, 3, 37, 3, -2))
sketch6.addConstraint(Sketcher.Constraint("Symmetric", 1, 3, 39, 3, -2))
sketch6.addConstraint(Sketcher.Constraint("Symmetric", 3, 3, 43, 3, -2))
sketch6.addConstraint(Sketcher.Constraint("Parallel", 2, 6))
sketch6.addConstraint(Sketcher.Constraint("Parallel", 6, 18))
sketch6.addConstraint(Sketcher.Constraint("Equal", 20, 22))
sketch6.addConstraint(Sketcher.Constraint("Radius", 1, Q("2 mm")))
sketch6.addConstraint(Sketcher.Constraint("Radius", 3, Q("3 mm")))
sketch6.addConstraint(Sketcher.Constraint("DistanceY", 14, 2, 14, 1, Q("12 mm")))
sketch6.addConstraint(Sketcher.Constraint("DistanceX", -1, 1, 3, 3, Q("8 mm")))
sketch6.addConstraint(Sketcher.Constraint("DistanceY", -1, 1, 1, 3, Q("149.1 mm")))
sketch6.addConstraint(Sketcher.Constraint("DistanceX", -1, 1, 9, 3, Q("53.8 mm")))
sketch6.addConstraint(Sketcher.Constraint("DistanceY", -1, 1, 11, 3, Q("90.1 mm")))
sketch6.addConstraint(Sketcher.Constraint("DistanceX", -1, 1, 15, 3, Q("54.8 mm")))
sketch6.addConstraint(Sketcher.Constraint("DistanceY", -1, 1, 15, 3, Q("67.1 mm")))
sketch6.addConstraint(Sketcher.Constraint("Distance", 18, Q("12.803799 mm")))
sketch6.addConstraint(Sketcher.Constraint("DistanceX", 12, 2, 12, 1, Q("30.961809 mm")))
sketch6.addConstraint(Sketcher.Constraint("DistanceX", 16, 2, 16, 1, Q("40.519948 mm")))
sketch6.addConstraint(Sketcher.Constraint("DistanceY", 10, 2, 10, 1, Q("17.454792 mm")))
sketch6.addConstraint(Sketcher.Constraint("DistanceY", -1, 1, 6, 2, Q("138.516098 mm")))
sketch6.addConstraint(Sketcher.Constraint("DistanceX", 0, 1, 0, 2, Q("27.121847 mm")))
pocket4 = body.newObject("PartDesign::Pocket", "Pocket003")
pocket4.Profile = sketch6
pocket4.Length = 10
pocket4.Reversed = True

# Sketch on XY plane
sketch7 = body.newObject("Sketcher::SketchObject", "Sketch006")
sketch7.AttachmentSupport = (doc.getObject("XY_Plane"), [""])
sketch7.MapMode = "FlatFace"
add_polygon(sketch7, [(55.8, 118.1), (55.8, 115.1), (30.006551, 115.1), (30.006551, 118.1)])  # lines 0-3
add_polygon(sketch7, [(55.8, 103.1), (55.8, 100.1), (24.425155, 100.1), (24.425155, 103.1)])  # lines 4-7
add_polygon(sketch7, [(-24.425155, 103.1), (-24.425155, 100.1), (-55.8, 100.1), (-55.8, 103.1)])  # lines 8-11
add_polygon(sketch7, [(-30.006551, 118.1), (-30.006551, 115.1), (-55.8, 115.1), (-55.8, 118.1)])  # lines 12-15
sketch7.addConstraint(Sketcher.Constraint("Vertical", 0))
sketch7.addConstraint(Sketcher.Constraint("Horizontal", 1))
sketch7.addConstraint(Sketcher.Constraint("Vertical", 2))
sketch7.addConstraint(Sketcher.Constraint("Horizontal", 3))
sketch7.addConstraint(Sketcher.Constraint("Vertical", 4))
sketch7.addConstraint(Sketcher.Constraint("Horizontal", 5))
sketch7.addConstraint(Sketcher.Constraint("Vertical", 6))
sketch7.addConstraint(Sketcher.Constraint("Horizontal", 7))
sketch7.addConstraint(Sketcher.Constraint("Vertical", 8))
sketch7.addConstraint(Sketcher.Constraint("Horizontal", 9))
sketch7.addConstraint(Sketcher.Constraint("Vertical", 10))
sketch7.addConstraint(Sketcher.Constraint("Horizontal", 11))
sketch7.addConstraint(Sketcher.Constraint("Vertical", 12))
sketch7.addConstraint(Sketcher.Constraint("Horizontal", 13))
sketch7.addConstraint(Sketcher.Constraint("Vertical", 14))
sketch7.addConstraint(Sketcher.Constraint("Horizontal", 15))
sketch7.addConstraint(Sketcher.Constraint("Symmetric", 5, 2, 8, 2, -2))
sketch7.addConstraint(Sketcher.Constraint("Symmetric", 7, 2, 10, 2, -2))
sketch7.addConstraint(Sketcher.Constraint("Symmetric", 1, 2, 12, 2, -2))
sketch7.addConstraint(Sketcher.Constraint("Symmetric", 3, 2, 14, 2, -2))
sketch7.addConstraint(Sketcher.Constraint("Vertical", 3, 2, 4, 2))
sketch7.addConstraint(Sketcher.Constraint("Equal", 2, 4))
sketch7.addConstraint(Sketcher.Constraint("DistanceY", 0, 2, 0, 1, Q("3 mm")))
sketch7.addConstraint(Sketcher.Constraint("DistanceY", 4, 2, 0, 2, Q("15 mm")))
sketch7.addConstraint(Sketcher.Constraint("DistanceX", -1, 1, 0, 2, Q("55.8 mm")))
sketch7.addConstraint(Sketcher.Constraint("DistanceY", -1, 1, 0, 2, Q("115.1 mm")))
sketch7.addConstraint(Sketcher.Constraint("DistanceX", 1, 2, 1, 1, Q("25.793449 mm")))
sketch7.addConstraint(Sketcher.Constraint("DistanceX", 5, 2, 5, 1, Q("31.374845 mm")))
pad3 = body.newObject("PartDesign::Pad", "Pad002")
pad3.Profile = sketch7
pad3.Length = 2

# Sketch on XY plane
sketch8 = body.newObject("Sketcher::SketchObject", "Sketch007")
sketch8.AttachmentSupport = (doc.getObject("XY_Plane"), [""])
sketch8.MapMode = "FlatFace"
add_polygon(sketch8, [(63.8, 75.1), (63.8, 70.1), (43.8, 70.1), (43.8, 75.1)])  # lines 0-3
add_polygon(sketch8, [(-43.8, 75.1), (-43.8, 70.1), (-63.8, 70.1), (-63.8, 75.1)])  # lines 4-7
sketch8.addConstraint(Sketcher.Constraint("Vertical", 0))
sketch8.addConstraint(Sketcher.Constraint("Horizontal", 1))
sketch8.addConstraint(Sketcher.Constraint("Vertical", 2))
sketch8.addConstraint(Sketcher.Constraint("Horizontal", 3))
sketch8.addConstraint(Sketcher.Constraint("Vertical", 4))
sketch8.addConstraint(Sketcher.Constraint("Horizontal", 5))
sketch8.addConstraint(Sketcher.Constraint("Vertical", 6))
sketch8.addConstraint(Sketcher.Constraint("Horizontal", 7))
sketch8.addConstraint(Sketcher.Constraint("Symmetric", 1, 2, 4, 2, -2))
sketch8.addConstraint(Sketcher.Constraint("Symmetric", 3, 2, 6, 2, -2))
sketch8.addConstraint(Sketcher.Constraint("DistanceX", 1, 2, 1, 1, Q("20 mm")))
sketch8.addConstraint(Sketcher.Constraint("DistanceY", 0, 2, 0, 1, Q("5 mm")))
sketch8.addConstraint(Sketcher.Constraint("DistanceX", -1, 1, 0, 2, Q("63.8 mm")))
sketch8.addConstraint(Sketcher.Constraint("DistanceY", -1, 1, 0, 2, Q("70.1 mm")))
pocket5 = body.newObject("PartDesign::Pocket", "Pocket004")
pocket5.Profile = sketch8
pocket5.Length = 10
pocket5.Reversed = True

doc.recompute()
